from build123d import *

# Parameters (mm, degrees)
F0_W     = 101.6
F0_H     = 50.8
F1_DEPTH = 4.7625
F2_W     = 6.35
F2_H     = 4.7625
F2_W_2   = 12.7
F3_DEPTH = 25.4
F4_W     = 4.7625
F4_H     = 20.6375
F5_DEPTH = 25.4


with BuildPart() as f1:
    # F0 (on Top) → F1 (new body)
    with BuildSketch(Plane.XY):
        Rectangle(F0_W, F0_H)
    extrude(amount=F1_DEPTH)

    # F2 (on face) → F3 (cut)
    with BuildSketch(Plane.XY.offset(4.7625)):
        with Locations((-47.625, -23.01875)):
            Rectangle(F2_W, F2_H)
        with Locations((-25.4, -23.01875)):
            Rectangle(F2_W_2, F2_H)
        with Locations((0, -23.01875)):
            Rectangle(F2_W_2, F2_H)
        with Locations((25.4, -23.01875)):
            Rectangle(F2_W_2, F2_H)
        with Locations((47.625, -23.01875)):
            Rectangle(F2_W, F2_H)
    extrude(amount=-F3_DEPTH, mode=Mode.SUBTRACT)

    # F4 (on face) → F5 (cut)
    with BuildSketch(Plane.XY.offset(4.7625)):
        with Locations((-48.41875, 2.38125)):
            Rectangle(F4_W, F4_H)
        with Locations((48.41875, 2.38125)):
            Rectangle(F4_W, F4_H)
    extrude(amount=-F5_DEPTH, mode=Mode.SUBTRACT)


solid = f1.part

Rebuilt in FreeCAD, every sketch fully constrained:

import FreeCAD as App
import Part
import Sketcher
from FreeCAD import Vector
Q = App.Units.Quantity


def add_polygon(sketch, points):
    """Adds a closed chain of lines whose ends are joined by coincident constraints."""
    first, n = sketch.GeometryCount, len(points)
    for a, b in zip(points, points[1:] + points[:1]):
        sketch.addGeometry(Part.LineSegment(App.Vector(*a, 0), App.Vector(*b, 0)), False)
    for i in range(n):
        sketch.addConstraint(Sketcher.Constraint("Coincident", first + i, 2, first + (i + 1) % n, 1))

doc = App.newDocument("Part")
body = doc.addObject("PartDesign::Body", "Body")

# Sketch on XY plane
sketch1 = body.newObject("Sketcher::SketchObject", "Sketch")
sketch1.AttachmentSupport = (doc.getObject("XY_Plane"), [""])
sketch1.MapMode = "FlatFace"
add_polygon(sketch1, [(-51, 25), (-51, -25), (51, -25), (51, 25)])  # lines 0-3
sketch1.addConstraint([
    Sketcher.Constraint("Vertical", 0),
    Sketcher.Constraint("Horizontal", 1),
    Sketcher.Constraint("Vertical", 2),
    Sketcher.Constraint("Horizontal", 3),
    Sketcher.Constraint("Symmetric", 0, 2, 2, 2, -1, 1),
    Sketcher.Constraint("DistanceX", 1, 1, 1, 2, Q("4 in")),
    Sketcher.Constraint("DistanceY", 0, 2, 0, 1, Q("2 in")),
])
pad1 = body.newObject("PartDesign::Pad", "Pad")
pad1.Profile = sketch1
pad1.Length = Q("0.1875 in")

# Sketch on XY plane
sketch2 = body.newObject("Sketcher::SketchObject", "Sketch001")
sketch2.AttachmentSupport = (doc.getObject("XY_Plane"), [""])
sketch2.MapMode = "FlatFace"
sketch2.AttachmentOffset = App.Placement(Vector(0, 0, 0.1875 * 25.4), App.Rotation())
add_polygon(sketch2, [(-50.8, -20.6), (-50.8, -25.4), (-44.5, -25.4), (-44.5, -20.6)])  # lines 0-3
add_polygon(sketch2, [(-31.8, -20.6), (-31.8, -25.4), (-19.1, -25.4), (-19.1, -20.6)])  # lines 4-7
add_polygon(sketch2, [(-6.3, -20.6), (-6.3, -25.4), (6.3, -25.4), (6.3, -20.6)])  # lines 8-11
add_polygon(sketch2, [(19.1, -20.6), (19.1, -25.4), (31.8, -25.4), (31.8, -20.6)])  # lines 12-15
add_polygon(sketch2, [(44.5, -20.6), (44.5, -25.4), (50.8, -25.4), (50.8, -20.6)])  # lines 16-19
sketch2.addConstraint([
    Sketcher.Constraint("Vertical", 0),
    Sketcher.Constraint("Horizontal", 1),
    Sketcher.Constraint("Vertical", 2),
    Sketcher.Constraint("Horizontal", 3),
    Sketcher.Constraint("Vertical", 4),
    Sketcher.Constraint("Horizontal", 5),
    Sketcher.Constraint("Vertical", 6),
    Sketcher.Constraint("Horizontal", 7),
    Sketcher.Constraint("Vertical", 8),
    Sketcher.Constraint("Horizontal", 9),
    Sketcher.Constraint("Vertical", 10),
    Sketcher.Constraint("Horizontal", 11),
    Sketcher.Constraint("Vertical", 12),
    Sketcher.Constraint("Horizontal", 13),
    Sketcher.Constraint("Vertical", 14),
    Sketcher.Constraint("Horizontal", 15),
    Sketcher.Constraint("Vertical", 16),
    Sketcher.Constraint("Horizontal", 17),
    Sketcher.Constraint("Vertical", 18),
    Sketcher.Constraint("Horizontal", 19),
    Sketcher.Constraint("Symmetric", 5, 2, 12, 2, -2),
    Sketcher.Constraint("Symmetric", 7, 2, 14, 2, -2),
    Sketcher.Constraint("Symmetric", 1, 2, 16, 2, -2),
    Sketcher.Constraint("Symmetric", 3, 2, 18, 2, -2),
    Sketcher.Constraint("Horizontal", 1, 2, 4, 2),
    Sketcher.Constraint("Horizontal", 3, 2, 6, 2),
    Sketcher.Constraint("Horizontal", 5, 2, 8, 2),
    Sketcher.Constraint("Horizontal", 7, 2, 10, 2),
    Sketcher.Constraint("Equal", 7, 9),
    Sketcher.Constraint("DistanceX", 5, 1, 5, 2, Q("0.5 in")),
    Sketcher.Constraint("DistanceX", 0, 2, -1, 1, Q("2 in")),
    Sketcher.Constraint("DistanceY", 0, 2, -1, 1, Q("1 in")),
    Sketcher.Constraint("DistanceX", 1, 2, 5, 2, Q("1 in")),
    Sketcher.Constraint("DistanceX", 4, 2, 8, 2, Q("1 in")),
    Sketcher.Constraint("DistanceX", 8, 2, 12, 2, Q("1 in")),
    Sketcher.Constraint("DistanceY", 0, 2, 0, 1, Q("0.1875 in")),
])
pocket1 = body.newObject("PartDesign::Pocket", "Pocket")
pocket1.Profile = sketch2
pocket1.Length = Q("1 in")

# Sketch on XY plane
sketch3 = body.newObject("Sketcher::SketchObject", "Sketch002")
sketch3.AttachmentSupport = (doc.getObject("XY_Plane"), [""])
sketch3.MapMode = "FlatFace"
sketch3.AttachmentOffset = App.Placement(Vector(0, 0, 0.1875 * 25.4), App.Rotation())
add_polygon(sketch3, [(-50.8, 12.7), (-50.8, -7.9), (-46, -7.9), (-46, 12.7)])  # lines 0-3
add_polygon(sketch3, [(46, 12.7), (46, -7.9), (50.8, -7.9), (50.8, 12.7)])  # lines 4-7
sketch3.addConstraint([
    Sketcher.Constraint("Vertical", 0),
    Sketcher.Constraint("Horizontal", 1),
    Sketcher.Constraint("Vertical", 2),
    Sketcher.Constraint("Horizontal", 3),
    Sketcher.Constraint("Vertical", 4),
    Sketcher.Constraint("Horizontal", 5),
    Sketcher.Constraint("Vertical", 6),
    Sketcher.Constraint("Horizontal", 7),
    Sketcher.Constraint("Symmetric", 1, 2, 4, 2, -2),
    Sketcher.Constraint("Symmetric", 3, 2, 6, 2, -2),
    Sketcher.Constraint("DistanceX", 0, 2, -1, 1, Q("2 in")),
    Sketcher.Constraint("DistanceY", -1, 1, 2, 2, Q("0.5 in")),
    Sketcher.Constraint("DistanceX", 1, 1, 1, 2, Q("0.1875 in")),
    Sketcher.Constraint("DistanceY", 0, 2, 0, 1, Q("0.8125 in")),
])
pocket2 = body.newObject("PartDesign::Pocket", "Pocket001")
pocket2.Profile = sketch3
pocket2.Length = Q("1 in")

doc.recompute()
